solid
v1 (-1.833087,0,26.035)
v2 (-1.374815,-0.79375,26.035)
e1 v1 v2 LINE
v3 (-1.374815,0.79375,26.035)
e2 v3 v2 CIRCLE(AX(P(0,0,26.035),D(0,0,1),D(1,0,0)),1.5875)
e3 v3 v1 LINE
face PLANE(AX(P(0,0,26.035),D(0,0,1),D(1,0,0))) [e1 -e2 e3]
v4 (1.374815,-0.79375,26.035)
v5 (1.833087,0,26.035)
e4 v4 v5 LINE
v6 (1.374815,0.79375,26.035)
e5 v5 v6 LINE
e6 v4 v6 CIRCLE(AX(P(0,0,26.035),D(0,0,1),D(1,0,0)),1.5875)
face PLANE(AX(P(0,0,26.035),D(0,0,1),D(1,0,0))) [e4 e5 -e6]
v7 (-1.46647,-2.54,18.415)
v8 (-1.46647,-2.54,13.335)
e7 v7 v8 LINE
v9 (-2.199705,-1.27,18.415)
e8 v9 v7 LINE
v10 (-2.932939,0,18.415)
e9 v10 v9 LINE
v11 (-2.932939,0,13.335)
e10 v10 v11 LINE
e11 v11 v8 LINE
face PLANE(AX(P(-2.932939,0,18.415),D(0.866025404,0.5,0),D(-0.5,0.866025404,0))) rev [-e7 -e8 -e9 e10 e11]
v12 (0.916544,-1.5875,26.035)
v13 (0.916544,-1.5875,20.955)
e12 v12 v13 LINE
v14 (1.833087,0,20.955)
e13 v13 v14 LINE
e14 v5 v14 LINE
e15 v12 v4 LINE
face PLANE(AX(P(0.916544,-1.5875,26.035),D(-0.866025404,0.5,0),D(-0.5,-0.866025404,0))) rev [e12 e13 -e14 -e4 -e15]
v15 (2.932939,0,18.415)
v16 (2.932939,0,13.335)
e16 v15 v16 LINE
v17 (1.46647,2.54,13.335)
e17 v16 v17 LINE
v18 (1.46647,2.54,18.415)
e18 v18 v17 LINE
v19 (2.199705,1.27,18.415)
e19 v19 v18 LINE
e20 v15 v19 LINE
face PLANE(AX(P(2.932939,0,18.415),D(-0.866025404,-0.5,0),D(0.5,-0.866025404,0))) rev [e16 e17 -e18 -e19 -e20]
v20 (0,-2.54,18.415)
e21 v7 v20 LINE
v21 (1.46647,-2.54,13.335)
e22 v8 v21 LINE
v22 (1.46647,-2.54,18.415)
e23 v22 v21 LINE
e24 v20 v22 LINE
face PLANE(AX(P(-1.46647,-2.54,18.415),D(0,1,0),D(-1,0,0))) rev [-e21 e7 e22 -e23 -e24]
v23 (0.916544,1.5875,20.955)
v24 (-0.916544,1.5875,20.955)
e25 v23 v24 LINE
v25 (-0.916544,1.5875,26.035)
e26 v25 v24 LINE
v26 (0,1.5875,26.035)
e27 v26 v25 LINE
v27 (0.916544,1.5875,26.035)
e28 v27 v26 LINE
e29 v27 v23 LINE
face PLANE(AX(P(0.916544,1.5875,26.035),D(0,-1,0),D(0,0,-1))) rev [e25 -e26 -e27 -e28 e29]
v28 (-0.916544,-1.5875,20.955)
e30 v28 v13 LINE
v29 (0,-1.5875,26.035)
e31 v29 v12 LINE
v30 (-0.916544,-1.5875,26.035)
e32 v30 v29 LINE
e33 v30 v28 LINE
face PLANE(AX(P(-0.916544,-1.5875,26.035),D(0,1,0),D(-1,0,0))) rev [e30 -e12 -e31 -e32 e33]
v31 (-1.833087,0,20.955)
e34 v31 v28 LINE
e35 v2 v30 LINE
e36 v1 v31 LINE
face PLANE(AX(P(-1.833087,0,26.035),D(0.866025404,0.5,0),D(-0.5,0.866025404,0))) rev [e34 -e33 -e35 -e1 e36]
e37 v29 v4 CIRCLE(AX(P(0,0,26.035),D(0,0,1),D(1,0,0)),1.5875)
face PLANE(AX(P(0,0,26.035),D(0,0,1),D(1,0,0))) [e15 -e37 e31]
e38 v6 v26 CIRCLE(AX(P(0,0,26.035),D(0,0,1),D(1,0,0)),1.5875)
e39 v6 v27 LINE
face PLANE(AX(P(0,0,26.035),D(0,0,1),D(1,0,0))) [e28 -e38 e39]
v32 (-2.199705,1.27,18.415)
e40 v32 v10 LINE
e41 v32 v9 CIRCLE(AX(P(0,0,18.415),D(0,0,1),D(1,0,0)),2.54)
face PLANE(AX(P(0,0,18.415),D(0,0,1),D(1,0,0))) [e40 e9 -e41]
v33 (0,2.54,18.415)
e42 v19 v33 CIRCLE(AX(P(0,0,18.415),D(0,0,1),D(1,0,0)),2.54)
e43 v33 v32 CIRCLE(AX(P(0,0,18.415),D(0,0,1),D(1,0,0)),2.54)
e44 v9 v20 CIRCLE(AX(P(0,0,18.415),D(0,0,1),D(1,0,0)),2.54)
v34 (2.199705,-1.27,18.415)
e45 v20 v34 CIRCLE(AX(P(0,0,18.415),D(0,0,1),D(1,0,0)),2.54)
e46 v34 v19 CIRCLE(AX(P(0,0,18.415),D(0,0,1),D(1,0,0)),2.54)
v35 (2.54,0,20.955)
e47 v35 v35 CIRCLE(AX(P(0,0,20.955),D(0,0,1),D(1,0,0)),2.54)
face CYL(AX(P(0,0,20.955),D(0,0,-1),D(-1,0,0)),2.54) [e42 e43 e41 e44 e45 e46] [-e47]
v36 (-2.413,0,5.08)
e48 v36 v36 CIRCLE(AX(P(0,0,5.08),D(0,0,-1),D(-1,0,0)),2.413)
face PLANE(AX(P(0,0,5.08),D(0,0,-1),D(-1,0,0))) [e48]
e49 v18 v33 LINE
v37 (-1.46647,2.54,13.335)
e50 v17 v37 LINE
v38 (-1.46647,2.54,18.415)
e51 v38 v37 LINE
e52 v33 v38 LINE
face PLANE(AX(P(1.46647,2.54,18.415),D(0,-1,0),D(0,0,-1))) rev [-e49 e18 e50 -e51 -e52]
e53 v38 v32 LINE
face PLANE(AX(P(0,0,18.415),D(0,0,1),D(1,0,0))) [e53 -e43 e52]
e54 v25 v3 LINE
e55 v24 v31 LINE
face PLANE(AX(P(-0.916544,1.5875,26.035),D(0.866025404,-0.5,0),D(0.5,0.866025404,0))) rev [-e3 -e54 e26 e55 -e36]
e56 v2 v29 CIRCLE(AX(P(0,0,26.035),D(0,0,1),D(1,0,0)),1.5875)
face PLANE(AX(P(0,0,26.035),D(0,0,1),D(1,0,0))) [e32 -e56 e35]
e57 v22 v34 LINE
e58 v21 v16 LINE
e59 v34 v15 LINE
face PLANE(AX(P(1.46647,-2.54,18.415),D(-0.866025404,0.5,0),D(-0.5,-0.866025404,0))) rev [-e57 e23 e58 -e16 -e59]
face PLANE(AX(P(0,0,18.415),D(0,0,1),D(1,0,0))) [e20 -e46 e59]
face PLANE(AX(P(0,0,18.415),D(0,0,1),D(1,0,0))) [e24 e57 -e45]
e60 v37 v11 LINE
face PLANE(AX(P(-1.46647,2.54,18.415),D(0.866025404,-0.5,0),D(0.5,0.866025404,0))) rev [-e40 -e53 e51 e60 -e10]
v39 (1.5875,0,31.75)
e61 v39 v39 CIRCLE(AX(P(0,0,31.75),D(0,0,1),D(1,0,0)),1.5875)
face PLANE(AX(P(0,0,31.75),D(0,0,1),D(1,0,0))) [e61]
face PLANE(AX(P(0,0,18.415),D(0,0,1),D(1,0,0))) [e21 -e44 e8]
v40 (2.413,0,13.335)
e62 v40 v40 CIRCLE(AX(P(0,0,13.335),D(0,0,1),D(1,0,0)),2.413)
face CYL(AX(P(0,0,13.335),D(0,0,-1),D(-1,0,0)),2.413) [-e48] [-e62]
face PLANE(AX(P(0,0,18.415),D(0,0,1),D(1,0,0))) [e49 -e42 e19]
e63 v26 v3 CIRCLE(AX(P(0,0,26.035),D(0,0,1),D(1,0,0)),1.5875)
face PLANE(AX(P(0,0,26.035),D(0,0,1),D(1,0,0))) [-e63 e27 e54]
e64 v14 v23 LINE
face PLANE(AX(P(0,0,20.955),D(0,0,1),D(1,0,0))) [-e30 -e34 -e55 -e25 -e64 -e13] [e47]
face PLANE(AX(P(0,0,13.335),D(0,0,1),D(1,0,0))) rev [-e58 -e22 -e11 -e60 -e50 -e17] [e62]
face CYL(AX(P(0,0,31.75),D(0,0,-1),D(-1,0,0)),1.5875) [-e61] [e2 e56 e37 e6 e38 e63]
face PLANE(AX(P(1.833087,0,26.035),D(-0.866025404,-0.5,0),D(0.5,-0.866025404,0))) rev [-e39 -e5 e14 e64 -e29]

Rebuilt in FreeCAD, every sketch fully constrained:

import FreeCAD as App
import Part
import Sketcher
from FreeCAD import Vector
Q = App.Units.Quantity


def add_polygon(sketch, points):
    """Adds a closed chain of lines whose ends are joined by coincident constraints."""
    first, n = sketch.GeometryCount, len(points)
    for a, b in zip(points, points[1:] + points[:1]):
        sketch.addGeometry(Part.LineSegment(App.Vector(*a, 0), App.Vector(*b, 0)), False)
    for i in range(n):
        sketch.addConstraint(Sketcher.Constraint("Coincident", first + i, 2, first + (i + 1) % n, 1))

doc = App.newDocument("Part")
body = doc.addObject("PartDesign::Body", "Body")

sketch1 = doc.addObject("Sketcher::SketchObject", "Sketch")
body.addObject(sketch1)
sketch1.AttachmentSupport = (doc.XY_Plane, [""])
sketch1.MapMode = "FlatFace"
sketch1.addGeometry(Part.Circle(Vector(0, 0, 0), Vector(0, 0, 1), 2.4), False)
sketch1.addConstraint([
    Sketcher.Constraint("Coincident", 0, 3, -1, 1),
    Sketcher.Constraint("Diameter", 0, Q("0.19 in")),
])
pad1 = doc.addObject("PartDesign::Pad", "Pad")
body.addObject(pad1)
pad1.Profile = sketch1
pad1.Length = Q("0.525 in")

sketch2 = doc.addObject("Sketcher::SketchObject", "Sketch001")
body.addObject(sketch2)
sketch2.AttachmentSupport = (doc.XY_Plane, [""])
sketch2.MapMode = "FlatFace"
sketch2.AttachmentOffset = App.Placement(Vector(0, 0, 0.525 * 25.4), App.Rotation())
add_polygon(sketch2, [(2.9, 0), (1.5, 2.5), (-1.5, 2.5), (-2.9, 0), (-1.5, -2.5), (1.5, -2.5)])
sketch2.addConstraint([
    Sketcher.Constraint("Horizontal", 1),
    Sketcher.Constraint("Horizontal", 4),
    Sketcher.Constraint("Symmetric", 0, 2, 3, 2, -1, 1),
    Sketcher.Constraint("Symmetric", 2, 2, 5, 2, -1, 1),
    Sketcher.Constraint("PointOnObject", 2, 2, -1),
    Sketcher.Constraint("Parallel", 2, 5),
    Sketcher.Constraint("Vertical", 1, 2, 3, 2),
    Sketcher.Constraint("Angle", 0, Q("120 deg")),
    Sketcher.Constraint("DistanceY", -1, 1, 0, 2, Q("0.1 in")),
    Sketcher.Constraint("DistanceX", 1, 2, 1, 1, 2.932939),
])
pad2 = doc.addObject("PartDesign::Pad", "Pad001")
body.addObject(pad2)
pad2.Profile = sketch2
pad2.Length = Q("0.2 in")

sketch3 = doc.addObject("Sketcher::SketchObject", "Sketch002")
body.addObject(sketch3)
sketch3.AttachmentSupport = (doc.XY_Plane, [""])
sketch3.MapMode = "FlatFace"
sketch3.addGeometry(Part.Circle(Vector(0, 0, 0), Vector(0, 0, 1), 2.4), False)
sketch3.addConstraint([
    Sketcher.Constraint("Coincident", 0, 3, -1, 1),
    Sketcher.Constraint("Diameter", 0, Q("0.19 in")),
])
pocket1 = doc.addObject("PartDesign::Pocket", "Pocket")
body.addObject(pocket1)
pocket1.Profile = sketch3
pocket1.Length = Q("0.075 in")
pocket1.Reversed = True

sketch4 = doc.addObject("Sketcher::SketchObject", "Sketch003")
body.addObject(sketch4)
sketch4.AttachmentSupport = (doc.XY_Plane, [""])
sketch4.MapMode = "FlatFace"
sketch4.AttachmentOffset = App.Placement(Vector(0, 0, 0.725 * 25.4), App.Rotation())
sketch4.addGeometry(Part.Circle(Vector(0, 0, 0), Vector(0, 0, 1), 2.5), False)
sketch4.addConstraint([
    Sketcher.Constraint("Coincident", 0, 3, -1, 1),
    Sketcher.Constraint("Diameter", 0, Q("0.2 in")),
])
pad3 = doc.addObject("PartDesign::Pad", "Pad002")
body.addObject(pad3)
pad3.Profile = sketch4
pad3.Length = Q("0.1 in")

sketch5 = doc.addObject("Sketcher::SketchObject", "Sketch004")
body.addObject(sketch5)
sketch5.AttachmentSupport = (doc.XY_Plane, [""])
sketch5.MapMode = "FlatFace"
sketch5.AttachmentOffset = App.Placement(Vector(0, 0, 0.825 * 25.4), App.Rotation())
add_polygon(sketch5, [(1.8, 0), (0.9, 1.6), (-0.9, 1.6), (-1.8, 0), (-0.9, -1.6), (0.9, -1.6)])
sketch5.addConstraint([
    Sketcher.Constraint("Horizontal", 1),
    Sketcher.Constraint("Horizontal", 4),
    Sketcher.Constraint("Symmetric", 0, 2, 3, 2, -1, 1),
    Sketcher.Constraint("Symmetric", 2, 2, 5, 2, -1, 1),
    Sketcher.Constraint("PointOnObject", 2, 2, -1),
    Sketcher.Constraint("Parallel", 2, 5),
    Sketcher.Constraint("Vertical", 1, 2, 3, 2),
    Sketcher.Constraint("Angle", 0, Q("120 deg")),
    Sketcher.Constraint("DistanceY", -1, 1, 0, 2, Q("0.0625 in")),
    Sketcher.Constraint("DistanceX", 1, 2, 1, 1, 1.833087),
])
pad4 = doc.addObject("PartDesign::Pad", "Pad003")
body.addObject(pad4)
pad4.Profile = sketch5
pad4.Length = Q("0.2 in")

sketch6 = doc.addObject("Sketcher::SketchObject", "Sketch005")
body.addObject(sketch6)
sketch6.AttachmentSupport = (doc.XY_Plane, [""])
sketch6.MapMode = "FlatFace"
sketch6.AttachmentOffset = App.Placement(Vector(0, 0, 1.025 * 25.4), App.Rotation())
sketch6.addGeometry(Part.Circle(Vector(0, 0, 0), Vector(0, 0, 1), 1.6), False)
sketch6.addConstraint([
    Sketcher.Constraint("Coincident", 0, 3, -1, 1),
    Sketcher.Constraint("Diameter", 0, Q("0.125 in")),
])
pad5 = doc.addObject("PartDesign::Pad", "Pad004")
body.addObject(pad5)
pad5.Profile = sketch6
pad5.Length = Q("0.225 in")

sketch7 = doc.addObject("Sketcher::SketchObject", "Sketch006")
body.addObject(sketch7)
sketch7.AttachmentSupport = (doc.XY_Plane, [""])
sketch7.MapMode = "FlatFace"
sketch7.AttachmentOffset = App.Placement(Vector(0, 0, 0.075 * 25.4), App.Rotation())
sketch7.addGeometry(Part.Circle(Vector(0, 0, 0), Vector(0, 0, 1), 2.4), False)
sketch7.addConstraint([
    Sketcher.Constraint("Coincident", 0, 3, -1, 1),
    Sketcher.Constraint("Diameter", 0, Q("0.19 in")),
])
pocket2 = doc.addObject("PartDesign::Pocket", "Pocket001")
body.addObject(pocket2)
pocket2.Profile = sketch7
pocket2.Length = Q("0.125 in")
pocket2.Reversed = True

doc.recompute()
